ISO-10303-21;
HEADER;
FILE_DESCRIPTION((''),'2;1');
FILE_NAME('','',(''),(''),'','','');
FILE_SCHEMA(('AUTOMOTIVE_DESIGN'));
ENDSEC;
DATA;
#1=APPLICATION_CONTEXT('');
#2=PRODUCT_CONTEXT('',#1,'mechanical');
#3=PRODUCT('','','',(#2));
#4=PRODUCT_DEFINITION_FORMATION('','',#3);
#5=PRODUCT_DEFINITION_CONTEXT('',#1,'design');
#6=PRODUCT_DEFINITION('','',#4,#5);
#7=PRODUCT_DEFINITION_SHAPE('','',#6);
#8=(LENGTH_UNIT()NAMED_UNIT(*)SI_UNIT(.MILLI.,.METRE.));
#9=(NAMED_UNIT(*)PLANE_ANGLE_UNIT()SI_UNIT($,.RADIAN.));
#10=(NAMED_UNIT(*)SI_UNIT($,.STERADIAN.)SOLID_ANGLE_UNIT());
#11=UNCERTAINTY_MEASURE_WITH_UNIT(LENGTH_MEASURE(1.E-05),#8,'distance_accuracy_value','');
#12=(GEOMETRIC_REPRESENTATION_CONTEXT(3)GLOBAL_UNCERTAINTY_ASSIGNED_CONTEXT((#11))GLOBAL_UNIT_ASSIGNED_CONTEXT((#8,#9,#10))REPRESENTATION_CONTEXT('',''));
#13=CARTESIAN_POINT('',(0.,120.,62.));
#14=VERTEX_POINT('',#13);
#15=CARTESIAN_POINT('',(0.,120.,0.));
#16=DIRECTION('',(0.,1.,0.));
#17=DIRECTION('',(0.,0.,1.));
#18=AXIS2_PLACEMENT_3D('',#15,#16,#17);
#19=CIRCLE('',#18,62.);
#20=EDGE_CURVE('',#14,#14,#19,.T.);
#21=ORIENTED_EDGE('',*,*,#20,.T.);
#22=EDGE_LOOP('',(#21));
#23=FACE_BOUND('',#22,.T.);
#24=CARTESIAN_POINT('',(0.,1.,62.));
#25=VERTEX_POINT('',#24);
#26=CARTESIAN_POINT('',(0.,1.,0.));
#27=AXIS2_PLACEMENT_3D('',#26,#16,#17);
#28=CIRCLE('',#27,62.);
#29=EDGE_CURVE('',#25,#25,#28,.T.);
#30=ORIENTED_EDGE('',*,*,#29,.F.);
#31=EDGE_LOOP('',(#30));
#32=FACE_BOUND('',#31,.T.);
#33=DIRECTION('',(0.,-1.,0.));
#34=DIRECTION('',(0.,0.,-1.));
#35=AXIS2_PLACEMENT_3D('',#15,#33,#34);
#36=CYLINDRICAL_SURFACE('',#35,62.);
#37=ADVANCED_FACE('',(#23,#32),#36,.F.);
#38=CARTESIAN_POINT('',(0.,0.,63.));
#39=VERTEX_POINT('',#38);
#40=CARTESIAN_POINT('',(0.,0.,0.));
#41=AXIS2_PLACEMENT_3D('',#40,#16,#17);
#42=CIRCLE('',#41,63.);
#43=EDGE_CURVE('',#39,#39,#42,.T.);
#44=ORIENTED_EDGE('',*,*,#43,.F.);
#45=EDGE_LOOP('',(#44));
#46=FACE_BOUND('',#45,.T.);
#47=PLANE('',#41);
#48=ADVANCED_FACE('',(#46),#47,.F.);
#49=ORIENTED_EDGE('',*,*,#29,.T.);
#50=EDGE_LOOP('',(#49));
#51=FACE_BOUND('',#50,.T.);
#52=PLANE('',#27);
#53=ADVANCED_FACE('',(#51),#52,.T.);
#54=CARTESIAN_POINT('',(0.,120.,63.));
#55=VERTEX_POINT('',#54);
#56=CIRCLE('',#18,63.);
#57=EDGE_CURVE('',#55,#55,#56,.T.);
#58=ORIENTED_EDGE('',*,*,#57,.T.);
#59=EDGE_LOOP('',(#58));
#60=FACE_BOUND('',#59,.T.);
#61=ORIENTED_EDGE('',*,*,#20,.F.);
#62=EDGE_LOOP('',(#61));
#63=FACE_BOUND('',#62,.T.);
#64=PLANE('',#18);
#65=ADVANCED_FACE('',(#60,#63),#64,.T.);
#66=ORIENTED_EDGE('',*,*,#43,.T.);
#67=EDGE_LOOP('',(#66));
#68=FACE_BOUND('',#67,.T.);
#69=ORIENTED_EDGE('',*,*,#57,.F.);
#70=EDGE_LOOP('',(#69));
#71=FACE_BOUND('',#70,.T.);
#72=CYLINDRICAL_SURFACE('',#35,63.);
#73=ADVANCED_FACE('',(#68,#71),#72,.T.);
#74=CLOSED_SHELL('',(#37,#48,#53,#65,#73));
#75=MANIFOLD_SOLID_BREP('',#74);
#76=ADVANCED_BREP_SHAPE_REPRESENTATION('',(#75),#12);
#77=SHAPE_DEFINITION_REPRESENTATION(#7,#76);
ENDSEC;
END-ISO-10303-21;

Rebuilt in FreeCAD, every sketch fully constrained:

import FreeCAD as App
import Part
import Sketcher

V = App.Vector


def faces_at(feature, points):
    """Names of the faces that lie closest to the given points."""
    faces = feature.Shape.Faces
    near = lambda p: min(range(len(faces)), key=lambda i: faces[i].distToShape(Part.Vertex(*p))[0])
    return sorted({f"Face{near(p) + 1}" for p in points})

doc = App.newDocument("Part")
params = doc.addObject("Spreadsheet::Sheet", "Params")
for row, (alias, value) in enumerate([
    ("sketch1_diameter", "126 mm"),
    ("pad1_length", "120 mm"),
    ("thickness_wall", "1 mm"),
], start=1):
    params.set(f"A{row}", alias)
    params.set(f"B{row}", "=" + value)
    params.setAlias(f"B{row}", alias)

body = doc.addObject("PartDesign::Body", "Body")

# Sketch on XZ plane
sketch1 = doc.addObject("Sketcher::SketchObject", "Sketch")
body.addObject(sketch1)
sketch1.AttachmentSupport = (doc.XZ_Plane, [""])
sketch1.MapMode = "FlatFace"
sketch1.addGeometry(Part.Circle(V(0, 0, 0), V(0, 0, 1), 63), False)
sketch1.addConstraint([
    Sketcher.Constraint("Coincident", 0, 3, -1, 1),
    Sketcher.Constraint("Diameter", 0, 126.0),
])
sketch1.setExpression("Constraints[1]", "Params.sketch1_diameter")
pad1 = doc.addObject("PartDesign::Pad", "Pad")
body.addObject(pad1)
pad1.Profile = sketch1
pad1.setExpression("Length", "Params.pad1_length")
pad1.Reversed = True
doc.recompute()

thickness = doc.addObject("PartDesign::Thickness", "Thickness")
body.addObject(thickness)
thickness.Base = (pad1, faces_at(pad1, [(0, 120, 0)]))
thickness.setExpression("Value", "Params.thickness_wall")
thickness.Reversed = True
thickness.Join = "Intersection"

doc.recompute()
